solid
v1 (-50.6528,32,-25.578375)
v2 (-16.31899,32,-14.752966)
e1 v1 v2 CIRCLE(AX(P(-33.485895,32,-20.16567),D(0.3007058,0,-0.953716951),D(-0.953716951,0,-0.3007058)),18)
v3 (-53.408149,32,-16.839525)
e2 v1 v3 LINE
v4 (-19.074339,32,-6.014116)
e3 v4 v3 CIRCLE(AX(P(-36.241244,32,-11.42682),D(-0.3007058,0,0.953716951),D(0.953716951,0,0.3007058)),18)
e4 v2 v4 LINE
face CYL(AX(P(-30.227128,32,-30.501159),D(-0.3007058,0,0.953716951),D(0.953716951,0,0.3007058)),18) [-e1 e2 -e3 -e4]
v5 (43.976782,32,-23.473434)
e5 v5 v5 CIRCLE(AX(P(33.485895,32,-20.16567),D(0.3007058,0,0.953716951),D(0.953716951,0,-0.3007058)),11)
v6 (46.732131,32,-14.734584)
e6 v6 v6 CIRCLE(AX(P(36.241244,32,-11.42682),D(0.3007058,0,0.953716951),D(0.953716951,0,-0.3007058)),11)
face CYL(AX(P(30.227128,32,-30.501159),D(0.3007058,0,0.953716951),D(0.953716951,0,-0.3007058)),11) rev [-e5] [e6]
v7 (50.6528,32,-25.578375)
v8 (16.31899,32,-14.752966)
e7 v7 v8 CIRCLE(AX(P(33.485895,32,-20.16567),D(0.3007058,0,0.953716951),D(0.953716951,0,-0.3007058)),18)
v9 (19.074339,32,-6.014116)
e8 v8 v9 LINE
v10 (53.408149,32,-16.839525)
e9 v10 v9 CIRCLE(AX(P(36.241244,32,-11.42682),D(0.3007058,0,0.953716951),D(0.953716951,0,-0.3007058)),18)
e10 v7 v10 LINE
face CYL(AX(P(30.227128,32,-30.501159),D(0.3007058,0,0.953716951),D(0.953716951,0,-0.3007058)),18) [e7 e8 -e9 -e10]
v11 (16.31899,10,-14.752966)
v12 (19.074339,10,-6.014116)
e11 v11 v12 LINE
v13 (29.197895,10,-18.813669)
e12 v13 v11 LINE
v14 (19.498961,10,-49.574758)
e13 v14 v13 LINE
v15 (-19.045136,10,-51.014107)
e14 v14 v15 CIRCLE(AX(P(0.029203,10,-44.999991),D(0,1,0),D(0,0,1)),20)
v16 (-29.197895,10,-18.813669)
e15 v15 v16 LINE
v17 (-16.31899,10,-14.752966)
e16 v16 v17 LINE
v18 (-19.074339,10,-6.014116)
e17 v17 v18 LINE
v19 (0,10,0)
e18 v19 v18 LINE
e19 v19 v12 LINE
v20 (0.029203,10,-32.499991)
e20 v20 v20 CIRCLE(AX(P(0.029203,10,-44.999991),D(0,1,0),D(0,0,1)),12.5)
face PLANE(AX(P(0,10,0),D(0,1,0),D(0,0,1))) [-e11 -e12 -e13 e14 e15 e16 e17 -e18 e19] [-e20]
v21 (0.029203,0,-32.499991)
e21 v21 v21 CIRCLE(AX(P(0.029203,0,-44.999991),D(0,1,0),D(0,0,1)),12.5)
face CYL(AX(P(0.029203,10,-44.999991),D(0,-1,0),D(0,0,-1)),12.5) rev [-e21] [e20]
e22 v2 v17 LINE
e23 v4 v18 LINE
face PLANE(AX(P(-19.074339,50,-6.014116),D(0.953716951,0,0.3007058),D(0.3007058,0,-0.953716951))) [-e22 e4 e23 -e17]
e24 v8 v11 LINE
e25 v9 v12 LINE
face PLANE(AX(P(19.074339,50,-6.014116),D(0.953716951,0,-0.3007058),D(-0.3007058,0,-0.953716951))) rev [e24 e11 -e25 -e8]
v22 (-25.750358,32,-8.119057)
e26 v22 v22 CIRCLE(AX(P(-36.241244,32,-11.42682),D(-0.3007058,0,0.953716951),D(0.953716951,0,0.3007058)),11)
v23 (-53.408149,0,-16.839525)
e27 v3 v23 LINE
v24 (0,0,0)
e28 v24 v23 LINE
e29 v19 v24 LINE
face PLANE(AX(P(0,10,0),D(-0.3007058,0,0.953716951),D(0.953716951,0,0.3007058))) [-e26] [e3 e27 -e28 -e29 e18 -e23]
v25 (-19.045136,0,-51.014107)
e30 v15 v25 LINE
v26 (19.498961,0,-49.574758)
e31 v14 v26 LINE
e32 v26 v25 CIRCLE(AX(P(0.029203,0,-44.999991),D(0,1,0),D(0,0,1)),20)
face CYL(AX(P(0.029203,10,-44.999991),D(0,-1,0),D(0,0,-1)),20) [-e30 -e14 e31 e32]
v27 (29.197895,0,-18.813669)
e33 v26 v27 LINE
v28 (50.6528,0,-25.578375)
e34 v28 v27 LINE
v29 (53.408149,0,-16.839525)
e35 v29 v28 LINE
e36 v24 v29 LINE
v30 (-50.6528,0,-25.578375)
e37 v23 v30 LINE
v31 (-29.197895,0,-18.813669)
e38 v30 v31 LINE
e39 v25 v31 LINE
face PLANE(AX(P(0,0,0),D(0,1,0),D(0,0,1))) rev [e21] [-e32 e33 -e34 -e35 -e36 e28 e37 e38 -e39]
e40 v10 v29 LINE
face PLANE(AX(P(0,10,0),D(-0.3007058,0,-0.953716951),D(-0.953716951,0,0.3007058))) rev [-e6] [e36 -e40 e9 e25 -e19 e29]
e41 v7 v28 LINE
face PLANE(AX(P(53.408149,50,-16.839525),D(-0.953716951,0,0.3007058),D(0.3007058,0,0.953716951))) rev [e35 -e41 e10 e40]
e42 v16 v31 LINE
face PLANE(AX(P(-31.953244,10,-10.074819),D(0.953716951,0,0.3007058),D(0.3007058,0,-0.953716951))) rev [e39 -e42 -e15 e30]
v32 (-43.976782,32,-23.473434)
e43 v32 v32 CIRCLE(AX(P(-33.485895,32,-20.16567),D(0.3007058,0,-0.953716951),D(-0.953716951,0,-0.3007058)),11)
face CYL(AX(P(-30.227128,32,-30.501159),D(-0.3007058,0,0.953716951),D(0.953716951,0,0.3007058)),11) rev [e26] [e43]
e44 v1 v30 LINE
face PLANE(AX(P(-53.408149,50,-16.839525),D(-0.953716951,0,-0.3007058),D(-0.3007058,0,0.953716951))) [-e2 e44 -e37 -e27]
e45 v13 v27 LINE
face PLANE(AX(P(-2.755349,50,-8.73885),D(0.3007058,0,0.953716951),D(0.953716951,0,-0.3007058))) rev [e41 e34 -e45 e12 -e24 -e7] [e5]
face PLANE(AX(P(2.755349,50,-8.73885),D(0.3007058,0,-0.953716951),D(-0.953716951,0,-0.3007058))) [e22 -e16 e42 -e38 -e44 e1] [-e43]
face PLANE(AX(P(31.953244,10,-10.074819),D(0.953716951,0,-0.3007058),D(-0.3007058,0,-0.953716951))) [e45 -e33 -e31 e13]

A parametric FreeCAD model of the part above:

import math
import FreeCAD as App
import Part
import Sketcher
Q = App.Units.Quantity


def add_polygon(sketch, points):
    """Adds a closed chain of lines whose ends are joined by coincident constraints."""
    first, n = sketch.GeometryCount, len(points)
    for a, b in zip(points, points[1:] + points[:1]):
        sketch.addGeometry(Part.LineSegment(App.Vector(*a, 0), App.Vector(*b, 0)), False)
    for i in range(n):
        sketch.addConstraint(Sketcher.Constraint("Coincident", first + i, 2, first + (i + 1) % n, 1))

doc = App.newDocument("Part")
body = doc.addObject("PartDesign::Body", "Body")

# Sketch on XZ plane
sketch1 = body.newObject("Sketcher::SketchObject", "Sketch")
sketch1.AttachmentSupport = (doc.getObject("XZ_Plane"), [""])
sketch1.MapMode = "FlatFace"
sketch1.addGeometry([
    Part.LineSegment(App.Vector(-19.074339, -6.014116, 0), App.Vector(0, 0, 0)),  # 0
    Part.LineSegment(App.Vector(0, 0, 0), App.Vector(19.074339, -6.014116, 0)),  # 1
    Part.LineSegment(App.Vector(19.074339, -6.014116, 0), App.Vector(16.31899, -14.752966, 0)),  # 2
    Part.LineSegment(App.Vector(16.31899, -14.752966, 0), App.Vector(29.197895, -18.813669, 0)),  # 3
    Part.LineSegment(App.Vector(29.197895, -18.813669, 0), App.Vector(19.498961, -49.574758, 0)),  # 4
    Part.ArcOfCircle(Part.Circle(App.Vector(0.029203, -44.999991, 0), App.Vector(0, 0, 1), 20), math.radians(-162.5), math.radians(-13.222806)),  # 5
    Part.LineSegment(App.Vector(-19.045136, -51.014107, 0), App.Vector(-29.197895, -18.813669, 0)),  # 6
    Part.LineSegment(App.Vector(-29.197895, -18.813669, 0), App.Vector(-16.31899, -14.752966, 0)),  # 7
    Part.LineSegment(App.Vector(-16.31899, -14.752966, 0), App.Vector(-19.074339, -6.014116, 0)),  # 8
    Part.Circle(App.Vector(0.029203, -44.999991, 0), App.Vector(0, 0, 1), 12.5),  # 9
], False)
sketch1.addConstraint([
    Sketcher.Constraint("Coincident", 0, 2, 1, 1),
    Sketcher.Constraint("Coincident", 1, 2, 2, 1),
    Sketcher.Constraint("Coincident", 2, 2, 3, 1),
    Sketcher.Constraint("Coincident", 3, 2, 4, 1),
    Sketcher.Constraint("Coincident", 4, 2, 5, 2),
    Sketcher.Constraint("Coincident", 5, 1, 6, 1),
    Sketcher.Constraint("Coincident", 6, 2, 7, 1),
    Sketcher.Constraint("Coincident", 7, 2, 8, 1),
    Sketcher.Constraint("Coincident", 8, 2, 0, 1),
    Sketcher.Constraint("Coincident", 0, 2, -1, 1),
    Sketcher.Constraint("Coincident", 9, 3, 5, 3),
    Sketcher.Constraint("Diameter", 9, 25.0),
    Sketcher.Constraint("Radius", 5, 20.0),
    Sketcher.Constraint("Distance", 0, 20.0),
    Sketcher.Constraint("Distance", 1, 20.0),
    Sketcher.Constraint("Distance", 2, 9.162939),
    Sketcher.Constraint("Distance", 8, 9.162939),
    Sketcher.Constraint("DistanceY", 5, 3, -1, 1, 44.999991),
    Sketcher.Constraint("DistanceX", -1, 1, 1, 2, 19.074339),
    Sketcher.Constraint("DistanceX", -1, 1, 2, 2, 16.31899),
    Sketcher.Constraint("DistanceY", 3, 2, -1, 1, 18.813669),
    Sketcher.Constraint("DistanceX", -1, 1, 4, 2, 19.498961),
    Sketcher.Constraint("DistanceY", 6, 2, -1, 1, 18.813669),
    Sketcher.Constraint("DistanceX", 7, 2, -1, 1, 16.31899),
    Sketcher.Constraint("DistanceX", 8, 2, -1, 1, 19.074339),
    Sketcher.Constraint("DistanceX", 5, 3, 4, 2, 19.469759),
    Sketcher.Constraint("DistanceX", 5, 1, 5, 3, 19.074339),
    Sketcher.Constraint("DistanceX", 6, 2, 5, 1, 10.152759),
    Sketcher.Constraint("Distance", 3, 13.503907),
])
pad1 = body.newObject("PartDesign::Pad", "Pad")
pad1.Profile = sketch1
pad1.Length = 10
pad1.Reversed = True

# Sketch on XZ plane
sketch2 = body.newObject("Sketcher::SketchObject", "Sketch001")
sketch2.AttachmentSupport = (doc.getObject("XZ_Plane"), [""])
sketch2.MapMode = "FlatFace"
add_polygon(sketch2, [(16, -15), (19, -6), (53, -17), (51, -26), (29, -19)])  # lines 0-4
add_polygon(sketch2, [(-53, -17), (-19, -6), (-16, -15), (-29, -19), (-51, -26)])  # lines 5-9
sketch2.addConstraint([
    Sketcher.Constraint("Symmetric", 0, 2, 5, 2, -2),
    Sketcher.Constraint("Symmetric", 4, 2, 6, 2, -2),
    Sketcher.Constraint("Symmetric", 3, 2, 7, 2, -2),
    Sketcher.Constraint("Symmetric", 2, 2, 8, 2, -2),
    Sketcher.Constraint("Symmetric", 1, 2, 9, 2, -2),
    Sketcher.Constraint("Perpendicular", 0, 1),
    Sketcher.Constraint("Perpendicular", 1, 2),
    Sketcher.Constraint("Perpendicular", 2, 3),
    Sketcher.Constraint("Parallel", 3, 4),
    Sketcher.Constraint("Distance", 1, 36.0),
    Sketcher.Constraint("Angle", 0, Q("72.5 deg")),
    Sketcher.Constraint("DistanceX", -1, 1, 2, 2, 50.6528),
    Sketcher.Constraint("Distance", 0, 9.162939),
    Sketcher.Constraint("DistanceY", 3, 2, -1, 1, 18.813669),
    Sketcher.Constraint("DistanceX", 7, 2, 3, 2, 58.395791),
])
pad2 = body.newObject("PartDesign::Pad", "Pad001")
pad2.Profile = sketch2
pad2.Length = 50
pad2.Reversed = True

# Sketch on an angled plane
sketch3 = body.newObject("Sketcher::SketchObject", "Sketch002")
sketch3.Placement = App.Placement(App.Vector(0, 0, 0), App.Rotation(App.Vector(0.953716951, 0, -0.3007058), App.Vector(0, 1.000000001, 0), App.Vector(0.3007058, 0, 0.953716951), "ZXY"))
sketch3.addGeometry([
    Part.Circle(App.Vector(38, 32, 0), App.Vector(0, 0, 1), 11),  # 0
    Part.ArcOfCircle(Part.Circle(App.Vector(38, 32, 0), App.Vector(0, 0, 1), 18), math.radians(0), math.radians(90)),  # 1
    Part.LineSegment(App.Vector(56, 32, 0), App.Vector(56, 50, 0)),  # 2
    Part.LineSegment(App.Vector(56, 50, 0), App.Vector(38, 50, 0)),  # 3
    Part.ArcOfCircle(Part.Circle(App.Vector(38, 32, 0), App.Vector(0, 0, 1), 18), math.radians(90), math.radians(180)),  # 4
    Part.LineSegment(App.Vector(38, 50, 0), App.Vector(20, 50, 0)),  # 5
    Part.LineSegment(App.Vector(20, 50, 0), App.Vector(20, 32, 0)),  # 6
], False)
sketch3.addConstraint([
    Sketcher.Constraint("Tangent", 1, 1, 2, 1),
    Sketcher.Constraint("Coincident", 2, 2, 3, 1),
    Sketcher.Constraint("Tangent", 3, 2, 1, 2),
    Sketcher.Constraint("Tangent", 4, 1, 5, 1),
    Sketcher.Constraint("Coincident", 5, 2, 6, 1),
    Sketcher.Constraint("Tangent", 6, 2, 4, 2),
    Sketcher.Constraint("Vertical", 2),
    Sketcher.Constraint("Horizontal", 3),
    Sketcher.Constraint("Horizontal", 5),
    Sketcher.Constraint("Vertical", 6),
    Sketcher.Constraint("Coincident", 1, 3, 0, 3),
    Sketcher.Constraint("Coincident", 4, 3, 0, 3),
    Sketcher.Constraint("Equal", 1, 4),
    Sketcher.Constraint("Diameter", 0, 22.0),
    Sketcher.Constraint("Radius", 1, 18.0),
    Sketcher.Constraint("DistanceX", -1, 1, 0, 3, 38.0),
    Sketcher.Constraint("DistanceY", -1, 1, 0, 3, 32.0),
])
pocket1 = body.newObject("PartDesign::Pocket", "Pocket")
pocket1.Profile = sketch3
pocket1.Length = 20

# Sketch on an angled plane
sketch4 = body.newObject("Sketcher::SketchObject", "Sketch003")
sketch4.Placement = App.Placement(App.Vector(0, 0, 0), App.Rotation(App.Vector(0.953716951, 0, 0.3007058), App.Vector(0, 1.000000001, 0), App.Vector(-0.3007058, 0, 0.953716951), "ZXY"))
sketch4.addGeometry([
    Part.Circle(App.Vector(-38, 32, 0), App.Vector(0, 0, 1), 11),  # 0
    Part.ArcOfCircle(Part.Circle(App.Vector(-38, 32, 0), App.Vector(0, 0, 1), 18), math.radians(0), math.radians(90)),  # 1
    Part.LineSegment(App.Vector(-20, 32, 0), App.Vector(-20, 50, 0)),  # 2
    Part.LineSegment(App.Vector(-20, 50, 0), App.Vector(-38, 50, 0)),  # 3
    Part.ArcOfCircle(Part.Circle(App.Vector(-38, 32, 0), App.Vector(0, 0, 1), 18), math.radians(90), math.radians(180)),  # 4
    Part.LineSegment(App.Vector(-38, 50, 0), App.Vector(-56, 50, 0)),  # 5
    Part.LineSegment(App.Vector(-56, 50, 0), App.Vector(-56, 32, 0)),  # 6
], False)
sketch4.addConstraint([
    Sketcher.Constraint("Tangent", 1, 1, 2, 1),
    Sketcher.Constraint("Coincident", 2, 2, 3, 1),
    Sketcher.Constraint("Tangent", 3, 2, 1, 2),
    Sketcher.Constraint("Tangent", 4, 1, 5, 1),
    Sketcher.Constraint("Coincident", 5, 2, 6, 1),
    Sketcher.Constraint("Tangent", 6, 2, 4, 2),
    Sketcher.Constraint("Vertical", 2),
    Sketcher.Constraint("Horizontal", 3),
    Sketcher.Constraint("Horizontal", 5),
    Sketcher.Constraint("Vertical", 6),
    Sketcher.Constraint("Coincident", 1, 3, 0, 3),
    Sketcher.Constraint("Coincident", 4, 3, 0, 3),
    Sketcher.Constraint("Equal", 1, 4),
    Sketcher.Constraint("Diameter", 0, 22.0),
    Sketcher.Constraint("Radius", 1, 18.0),
    Sketcher.Constraint("DistanceX", 0, 3, -1, 1, 38.0),
    Sketcher.Constraint("DistanceY", -1, 1, 0, 3, 32.0),
])
pocket2 = body.newObject("PartDesign::Pocket", "Pocket001")
pocket2.Profile = sketch4
pocket2.Length = 20

doc.recompute()
